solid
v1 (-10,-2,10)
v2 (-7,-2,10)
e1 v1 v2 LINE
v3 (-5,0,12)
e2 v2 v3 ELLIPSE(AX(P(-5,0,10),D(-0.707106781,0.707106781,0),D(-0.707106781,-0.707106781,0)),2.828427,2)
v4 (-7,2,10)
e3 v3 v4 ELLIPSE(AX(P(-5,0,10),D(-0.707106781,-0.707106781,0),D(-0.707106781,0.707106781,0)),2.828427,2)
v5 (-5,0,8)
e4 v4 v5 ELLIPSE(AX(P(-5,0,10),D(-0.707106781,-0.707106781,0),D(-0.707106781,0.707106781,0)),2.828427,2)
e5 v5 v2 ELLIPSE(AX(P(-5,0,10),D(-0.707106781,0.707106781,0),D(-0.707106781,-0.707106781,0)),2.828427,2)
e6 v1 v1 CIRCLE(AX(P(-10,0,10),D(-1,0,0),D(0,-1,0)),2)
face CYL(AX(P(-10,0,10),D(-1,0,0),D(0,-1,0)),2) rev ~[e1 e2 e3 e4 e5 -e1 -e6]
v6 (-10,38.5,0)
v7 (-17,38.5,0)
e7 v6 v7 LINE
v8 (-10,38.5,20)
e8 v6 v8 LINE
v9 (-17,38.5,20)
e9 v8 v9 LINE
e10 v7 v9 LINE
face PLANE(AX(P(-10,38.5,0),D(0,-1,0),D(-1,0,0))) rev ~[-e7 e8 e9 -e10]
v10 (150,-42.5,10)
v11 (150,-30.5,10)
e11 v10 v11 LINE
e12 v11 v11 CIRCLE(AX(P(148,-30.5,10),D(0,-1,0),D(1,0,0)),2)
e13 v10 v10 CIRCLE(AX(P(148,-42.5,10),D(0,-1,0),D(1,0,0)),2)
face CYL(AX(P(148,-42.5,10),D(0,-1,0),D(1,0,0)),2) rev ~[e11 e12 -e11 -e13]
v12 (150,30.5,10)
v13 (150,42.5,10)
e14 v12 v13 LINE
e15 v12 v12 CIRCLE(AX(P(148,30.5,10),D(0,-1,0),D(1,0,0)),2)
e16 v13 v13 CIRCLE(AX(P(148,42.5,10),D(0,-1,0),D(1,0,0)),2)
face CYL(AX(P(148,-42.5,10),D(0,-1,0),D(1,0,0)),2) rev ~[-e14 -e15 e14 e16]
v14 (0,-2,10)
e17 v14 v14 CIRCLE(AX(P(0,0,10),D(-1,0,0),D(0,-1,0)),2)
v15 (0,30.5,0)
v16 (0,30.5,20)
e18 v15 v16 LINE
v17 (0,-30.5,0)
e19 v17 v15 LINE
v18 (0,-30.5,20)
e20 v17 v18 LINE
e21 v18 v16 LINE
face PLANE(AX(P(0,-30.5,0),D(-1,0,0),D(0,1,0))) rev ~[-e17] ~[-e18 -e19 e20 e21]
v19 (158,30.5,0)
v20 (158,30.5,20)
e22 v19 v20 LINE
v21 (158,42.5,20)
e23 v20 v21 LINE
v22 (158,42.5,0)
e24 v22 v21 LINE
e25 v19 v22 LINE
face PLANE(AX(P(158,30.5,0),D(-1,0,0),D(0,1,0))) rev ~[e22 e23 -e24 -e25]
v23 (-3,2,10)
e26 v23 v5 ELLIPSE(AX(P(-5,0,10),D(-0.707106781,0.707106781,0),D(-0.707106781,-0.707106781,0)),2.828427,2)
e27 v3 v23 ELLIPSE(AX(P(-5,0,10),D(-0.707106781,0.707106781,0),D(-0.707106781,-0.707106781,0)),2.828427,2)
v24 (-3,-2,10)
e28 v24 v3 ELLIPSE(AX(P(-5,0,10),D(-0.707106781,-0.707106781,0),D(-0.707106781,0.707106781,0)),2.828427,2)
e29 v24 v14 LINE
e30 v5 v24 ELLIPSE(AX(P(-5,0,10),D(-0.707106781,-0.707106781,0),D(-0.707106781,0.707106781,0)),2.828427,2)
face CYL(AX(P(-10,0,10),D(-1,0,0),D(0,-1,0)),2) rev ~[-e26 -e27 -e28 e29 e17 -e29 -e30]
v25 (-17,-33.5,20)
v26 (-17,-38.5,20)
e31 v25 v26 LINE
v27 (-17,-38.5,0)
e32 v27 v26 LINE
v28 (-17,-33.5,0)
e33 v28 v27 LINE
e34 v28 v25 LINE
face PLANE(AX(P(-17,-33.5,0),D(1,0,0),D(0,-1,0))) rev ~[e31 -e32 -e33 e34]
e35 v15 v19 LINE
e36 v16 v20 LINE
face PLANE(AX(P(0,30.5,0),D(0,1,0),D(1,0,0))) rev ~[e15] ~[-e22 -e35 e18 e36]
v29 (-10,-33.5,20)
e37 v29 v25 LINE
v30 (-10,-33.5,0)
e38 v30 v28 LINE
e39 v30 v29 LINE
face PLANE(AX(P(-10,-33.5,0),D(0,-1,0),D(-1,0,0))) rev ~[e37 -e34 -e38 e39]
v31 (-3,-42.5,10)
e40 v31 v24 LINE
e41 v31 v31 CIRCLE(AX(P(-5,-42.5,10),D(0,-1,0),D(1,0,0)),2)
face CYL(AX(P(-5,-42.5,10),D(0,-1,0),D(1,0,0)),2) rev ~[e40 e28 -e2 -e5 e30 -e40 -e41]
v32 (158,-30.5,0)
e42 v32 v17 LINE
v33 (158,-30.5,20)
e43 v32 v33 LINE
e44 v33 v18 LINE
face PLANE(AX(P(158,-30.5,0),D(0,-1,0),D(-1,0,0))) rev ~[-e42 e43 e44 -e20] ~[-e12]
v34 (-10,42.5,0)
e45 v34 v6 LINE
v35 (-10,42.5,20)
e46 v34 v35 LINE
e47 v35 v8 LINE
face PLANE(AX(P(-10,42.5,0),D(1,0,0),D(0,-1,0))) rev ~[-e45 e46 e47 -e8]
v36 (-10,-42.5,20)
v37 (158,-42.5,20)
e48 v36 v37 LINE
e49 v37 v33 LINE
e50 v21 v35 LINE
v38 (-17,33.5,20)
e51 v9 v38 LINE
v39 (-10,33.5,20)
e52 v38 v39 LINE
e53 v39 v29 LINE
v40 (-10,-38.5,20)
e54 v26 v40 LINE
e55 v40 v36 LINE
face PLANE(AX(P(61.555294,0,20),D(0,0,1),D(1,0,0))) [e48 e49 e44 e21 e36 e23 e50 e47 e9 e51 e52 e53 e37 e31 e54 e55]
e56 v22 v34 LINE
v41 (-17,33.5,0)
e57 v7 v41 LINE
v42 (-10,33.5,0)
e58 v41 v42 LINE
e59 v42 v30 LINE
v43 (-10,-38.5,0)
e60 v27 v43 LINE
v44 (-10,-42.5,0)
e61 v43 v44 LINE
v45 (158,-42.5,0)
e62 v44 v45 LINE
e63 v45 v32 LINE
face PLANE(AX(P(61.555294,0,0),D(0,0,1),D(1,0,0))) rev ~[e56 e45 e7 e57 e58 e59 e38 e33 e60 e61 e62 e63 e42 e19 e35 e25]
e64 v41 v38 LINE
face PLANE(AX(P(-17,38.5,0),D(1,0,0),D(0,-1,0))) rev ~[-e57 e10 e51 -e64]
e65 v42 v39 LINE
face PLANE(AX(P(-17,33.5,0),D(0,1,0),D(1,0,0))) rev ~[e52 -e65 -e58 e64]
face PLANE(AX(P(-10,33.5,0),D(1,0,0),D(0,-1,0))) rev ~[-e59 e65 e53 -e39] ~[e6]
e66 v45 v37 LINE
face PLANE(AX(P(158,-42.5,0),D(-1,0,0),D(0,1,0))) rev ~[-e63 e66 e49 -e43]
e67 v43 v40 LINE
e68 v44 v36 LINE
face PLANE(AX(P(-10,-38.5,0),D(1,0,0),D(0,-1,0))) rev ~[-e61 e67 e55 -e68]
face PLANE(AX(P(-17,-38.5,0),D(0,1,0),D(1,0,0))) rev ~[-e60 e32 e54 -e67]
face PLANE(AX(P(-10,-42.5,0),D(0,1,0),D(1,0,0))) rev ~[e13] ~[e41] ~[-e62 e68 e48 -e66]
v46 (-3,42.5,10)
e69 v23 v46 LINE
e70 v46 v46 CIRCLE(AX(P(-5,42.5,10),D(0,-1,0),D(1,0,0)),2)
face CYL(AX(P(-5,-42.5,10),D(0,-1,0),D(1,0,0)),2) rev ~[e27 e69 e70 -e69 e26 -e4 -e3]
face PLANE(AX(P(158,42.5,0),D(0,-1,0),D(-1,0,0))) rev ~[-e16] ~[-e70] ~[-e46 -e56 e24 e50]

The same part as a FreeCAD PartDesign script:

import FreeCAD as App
import Part
import Sketcher


def add_polygon(sketch, points):
    """Adds a closed chain of lines whose ends are joined by coincident constraints."""
    first, n = sketch.GeometryCount, len(points)
    for a, b in zip(points, points[1:] + points[:1]):
        sketch.addGeometry(Part.LineSegment(App.Vector(*a, 0), App.Vector(*b, 0)), False)
    for i in range(n):
        sketch.addConstraint(Sketcher.Constraint("Coincident", first + i, 2, first + (i + 1) % n, 1))

doc = App.newDocument("Part")
body = doc.addObject("PartDesign::Body", "Body")

# Sketch on XY plane
sketch1 = body.newObject("Sketcher::SketchObject", "Sketch")
sketch1.AttachmentSupport = (doc.getObject("XY_Plane"), [""])
sketch1.MapMode = "FlatFace"
add_polygon(sketch1, [(-10, -42.5), (158, -42.5), (158, -30.5), (0, -30.5), (0, 30.5), (158, 30.5), (158, 42.5), (-10, 42.5), (-10, 38.5), (-17, 38.5), (-17, 33.5), (-10, 33.5), (-10, -33.5), (-17, -33.5), (-17, -38.5), (-10, -38.5)])  # lines 0-15
sketch1.addConstraint([
    Sketcher.Constraint("Horizontal", 0),
    Sketcher.Constraint("Vertical", 1),
    Sketcher.Constraint("Horizontal", 2),
    Sketcher.Constraint("Vertical", 3),
    Sketcher.Constraint("Horizontal", 4),
    Sketcher.Constraint("Vertical", 5),
    Sketcher.Constraint("Horizontal", 6),
    Sketcher.Constraint("Vertical", 7),
    Sketcher.Constraint("Horizontal", 8),
    Sketcher.Constraint("Vertical", 9),
    Sketcher.Constraint("Horizontal", 10),
    Sketcher.Constraint("Vertical", 11),
    Sketcher.Constraint("Horizontal", 12),
    Sketcher.Constraint("Vertical", 13),
    Sketcher.Constraint("Horizontal", 14),
    Sketcher.Constraint("Vertical", 15),
    Sketcher.Constraint("Symmetric", 2, 2, 3, 2, -1, 1),
    Sketcher.Constraint("Symmetric", 0, 2, 5, 2, -1),
    Sketcher.Constraint("Symmetric", 9, 2, 12, 2, -1),
    Sketcher.Constraint("Symmetric", 7, 2, 14, 2, -1),
    Sketcher.Constraint("Vertical", 7, 2, 10, 2),
    Sketcher.Constraint("DistanceX", 0, 1, 0, 2, 168.0),
    Sketcher.Constraint("DistanceX", 2, 2, 2, 1, 158.0),
    Sketcher.Constraint("DistanceX", 8, 2, 8, 1, 7.0),
    Sketcher.Constraint("DistanceY", 1, 1, 1, 2, 12.0),
    Sketcher.Constraint("DistanceY", 3, 1, 3, 2, 61.0),
    Sketcher.Constraint("DistanceY", 7, 2, 7, 1, 4.0),
    Sketcher.Constraint("DistanceY", 9, 2, 9, 1, 5.0),
])
pad1 = body.newObject("PartDesign::Pad", "Pad")
pad1.Profile = sketch1
pad1.Length = 20

# Sketch on YZ plane
sketch2 = body.newObject("Sketcher::SketchObject", "Sketch001")
sketch2.AttachmentSupport = (doc.getObject("YZ_Plane"), [""])
sketch2.MapMode = "FlatFace"
sketch2.AttachmentOffset = App.Placement(App.Vector(0, 0, -10), App.Rotation())
sketch2.addGeometry(Part.Circle(App.Vector(0, 10, 0), App.Vector(0, 0, 1), 2), False)
sketch2.addConstraint([
    Sketcher.Constraint("PointOnObject", 0, 3, -2),
    Sketcher.Constraint("Diameter", 0, 4.0),
    Sketcher.Constraint("DistanceY", -1, 1, 0, 3, 10.0),
])
pocket1 = body.newObject("PartDesign::Pocket", "Pocket")
pocket1.Profile = sketch2
pocket1.Type = "ThroughAll"
pocket1.Reversed = True

# Sketch on XZ plane
sketch3 = body.newObject("Sketcher::SketchObject", "Sketch002")
sketch3.AttachmentSupport = (doc.getObject("XZ_Plane"), [""])
sketch3.MapMode = "FlatFace"
sketch3.AttachmentOffset = App.Placement(App.Vector(0, 0, 42.5), App.Rotation())
sketch3.addGeometry([
    Part.Circle(App.Vector(-5, 10, 0), App.Vector(0, 0, 1), 2),
    Part.Circle(App.Vector(148, 10, 0), App.Vector(0, 0, 1), 2),
], False)
sketch3.addConstraint([
    Sketcher.Constraint("Equal", 0, 1),
    Sketcher.Constraint("Horizontal", 0, 3, 1, 3),
    Sketcher.Constraint("Diameter", 0, 4.0),
    Sketcher.Constraint("DistanceX", 0, 3, -1, 1, 5.0),
    Sketcher.Constraint("DistanceY", -1, 1, 0, 3, 10.0),
    Sketcher.Constraint("DistanceX", -1, 1, 1, 3, 148.0),
])
pocket2 = body.newObject("PartDesign::Pocket", "Pocket001")
pocket2.Profile = sketch3
pocket2.Type = "ThroughAll"

doc.recompute()
